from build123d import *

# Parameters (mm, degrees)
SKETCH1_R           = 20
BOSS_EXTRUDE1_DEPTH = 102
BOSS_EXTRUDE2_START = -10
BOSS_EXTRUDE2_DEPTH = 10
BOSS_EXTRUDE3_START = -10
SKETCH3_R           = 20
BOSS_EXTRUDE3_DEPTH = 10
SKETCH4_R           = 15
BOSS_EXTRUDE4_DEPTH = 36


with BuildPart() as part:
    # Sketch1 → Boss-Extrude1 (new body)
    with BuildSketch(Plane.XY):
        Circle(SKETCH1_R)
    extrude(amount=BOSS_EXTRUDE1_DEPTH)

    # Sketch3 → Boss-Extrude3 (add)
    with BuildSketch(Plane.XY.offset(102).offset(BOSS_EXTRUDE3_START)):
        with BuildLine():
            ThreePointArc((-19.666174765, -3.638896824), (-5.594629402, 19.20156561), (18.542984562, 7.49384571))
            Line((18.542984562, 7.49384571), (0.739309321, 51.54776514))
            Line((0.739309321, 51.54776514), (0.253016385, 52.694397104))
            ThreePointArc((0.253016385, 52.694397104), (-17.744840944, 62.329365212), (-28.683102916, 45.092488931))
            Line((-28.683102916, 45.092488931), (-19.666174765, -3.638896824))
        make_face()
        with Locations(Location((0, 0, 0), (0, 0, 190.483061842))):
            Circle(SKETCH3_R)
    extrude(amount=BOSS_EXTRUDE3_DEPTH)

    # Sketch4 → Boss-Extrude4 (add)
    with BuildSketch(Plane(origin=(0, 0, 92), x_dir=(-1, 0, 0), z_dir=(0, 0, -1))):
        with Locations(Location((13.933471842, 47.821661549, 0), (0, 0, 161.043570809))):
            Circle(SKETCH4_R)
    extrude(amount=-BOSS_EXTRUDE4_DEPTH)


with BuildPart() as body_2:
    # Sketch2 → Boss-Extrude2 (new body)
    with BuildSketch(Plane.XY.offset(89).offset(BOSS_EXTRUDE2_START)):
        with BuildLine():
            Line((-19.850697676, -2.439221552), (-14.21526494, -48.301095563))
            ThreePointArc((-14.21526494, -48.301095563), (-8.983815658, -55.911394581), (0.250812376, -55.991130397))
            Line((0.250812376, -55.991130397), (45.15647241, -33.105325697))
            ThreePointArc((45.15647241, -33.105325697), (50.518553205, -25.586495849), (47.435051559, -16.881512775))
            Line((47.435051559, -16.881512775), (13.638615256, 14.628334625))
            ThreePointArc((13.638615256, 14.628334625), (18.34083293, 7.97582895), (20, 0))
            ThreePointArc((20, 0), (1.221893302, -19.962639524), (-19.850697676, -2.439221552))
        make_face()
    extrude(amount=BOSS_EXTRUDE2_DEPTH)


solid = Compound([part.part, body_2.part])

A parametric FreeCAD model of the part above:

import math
import FreeCAD as App
import Part
import Sketcher
from FreeCAD import Vector

doc = App.newDocument("Part")
body = doc.addObject("PartDesign::Body", "Body")

# Sketch on XY plane
sketch1 = body.newObject("Sketcher::SketchObject", "Sketch")
sketch1.AttachmentSupport = (doc.getObject("XY_Plane"), [""])
sketch1.MapMode = "FlatFace"
sketch1.addGeometry(Part.Circle(Vector(0, 0, 0), Vector(0, 0, 1), 20), False)
sketch1.addConstraint(Sketcher.Constraint("Coincident", 0, 3, -1, 1))
sketch1.addConstraint(Sketcher.Constraint("Diameter", 0, 40.0))
pad1 = body.newObject("PartDesign::Pad", "Pad")
pad1.Profile = sketch1
pad1.Length = 102

# Sketch on XY plane
sketch2 = body.newObject("Sketcher::SketchObject", "Sketch001")
sketch2.AttachmentSupport = (doc.getObject("XY_Plane"), [""])
sketch2.MapMode = "FlatFace"
sketch2.AttachmentOffset = App.Placement(Vector(0, 0, 92), App.Rotation())
sketch2.addGeometry(Part.LineSegment(Vector(18.542985, 7.493846, 0), Vector(0.739309, 51.547765, 0)), False)
sketch2.addGeometry(Part.LineSegment(Vector(0.739309, 51.547765, 0), Vector(0.253016, 52.694397, 0)), False)
sketch2.addGeometry(Part.ArcOfCircle(Part.Circle(Vector(-13.933472, 47.821662, 0), Vector(0, 0, 1), 15), math.radians(18.956429), math.radians(190.483062)), False)
sketch2.addGeometry(Part.LineSegment(Vector(-28.683103, 45.092489, 0), Vector(-19.666175, -3.638897, 0)), False)
sketch2.addGeometry(Part.ArcOfCircle(Part.Circle(Vector(0, 0, 0), Vector(0, 0, 1), 20), math.radians(-169.516938), math.radians(22.005295)), False)
sketch2.addConstraint(Sketcher.Constraint("Coincident", 0, 2, 1, 1))
sketch2.addConstraint(Sketcher.Constraint("Coincident", 1, 2, 2, 1))
sketch2.addConstraint(Sketcher.Constraint("Tangent", 2, 2, 3, 1))
sketch2.addConstraint(Sketcher.Constraint("Tangent", 3, 2, 4, 1))
sketch2.addConstraint(Sketcher.Constraint("Tangent", 4, 2, 0, 1))
sketch2.addConstraint(Sketcher.Constraint("Coincident", 4, 3, -1, 1))
sketch2.addConstraint(Sketcher.Constraint("Radius", 2, 15.0))
sketch2.addConstraint(Sketcher.Constraint("Radius", 4, 20.0))
sketch2.addConstraint(Sketcher.Constraint("Distance", 1, 1.24549))
sketch2.addConstraint(Sketcher.Constraint("Distance", 3, 49.558581))
sketch2.addConstraint(Sketcher.Constraint("DistanceX", 2, 3, -1, 1, 13.933472))
sketch2.addConstraint(Sketcher.Constraint("DistanceX", -1, 1, 0, 2, 0.739309))
sketch2.addConstraint(Sketcher.Constraint("DistanceY", 0, 2, 1, 2, 1.146632))
pad2 = body.newObject("PartDesign::Pad", "Pad001")
pad2.Profile = sketch2
pad2.Length = 10

# Sketch on XY plane
sketch3 = body.newObject("Sketcher::SketchObject", "Sketch002")
sketch3.AttachmentSupport = (doc.getObject("XY_Plane"), [""])
sketch3.MapMode = "FlatFace"
sketch3.AttachmentOffset = App.Placement(Vector(0, 0, 92), App.Rotation())
sketch3.addGeometry(Part.Circle(Vector(-13.933472, 47.821662, 0), Vector(0, 0, 1), 15), False)
sketch3.addConstraint(Sketcher.Constraint("Diameter", 0, 30.0))
sketch3.addConstraint(Sketcher.Constraint("DistanceX", 0, 3, -1, 1, 13.933472))
sketch3.addConstraint(Sketcher.Constraint("DistanceY", -1, 1, 0, 3, 47.821662))
pad3 = body.newObject("PartDesign::Pad", "Pad002")
pad3.Profile = sketch3
pad3.Length = 36
body2 = doc.addObject("PartDesign::Body", "Body001")

# Sketch on XY plane
sketch4 = body2.newObject("Sketcher::SketchObject", "Sketch003")
sketch4.AttachmentSupport = (doc.getObject("XY_Plane001"), [""])
sketch4.MapMode = "FlatFace"
sketch4.AttachmentOffset = App.Placement(Vector(0, 0, 79), App.Rotation())
sketch4.addGeometry(Part.LineSegment(Vector(-19.850698, -2.439222, 0), Vector(-14.215265, -48.301096, 0)), False)
sketch4.addGeometry(Part.ArcOfCircle(Part.Circle(Vector(-4.289916, -47.081485, 0), Vector(0, 0, 1), 10), math.radians(-172.994705), math.radians(-62.994705)), False)
sketch4.addGeometry(Part.LineSegment(Vector(0.250812, -55.99113, 0), Vector(45.156472, -33.105326, 0)), False)
sketch4.addGeometry(Part.ArcOfCircle(Part.Circle(Vector(40.615744, -24.19568, 0), Vector(0, 0, 1), 10), math.radians(-62.994705), math.radians(47.005295)), False)
sketch4.addGeometry(Part.LineSegment(Vector(47.435052, -16.881513, 0), Vector(13.638615, 14.628335, 0)), False)
sketch4.addGeometry(Part.ArcOfCircle(Part.Circle(Vector(0, 0, 0), Vector(0, 0, 1), 20), math.radians(0), math.radians(47.005295)), False)
sketch4.addGeometry(Part.ArcOfCircle(Part.Circle(Vector(0, 0, 0), Vector(0, 0, 1), 20), math.radians(-172.994705), math.radians(0)), False)
sketch4.addConstraint(Sketcher.Constraint("Tangent", 0, 2, 1, 1))
sketch4.addConstraint(Sketcher.Constraint("Tangent", 1, 2, 2, 1))
sketch4.addConstraint(Sketcher.Constraint("Tangent", 2, 2, 3, 1))
sketch4.addConstraint(Sketcher.Constraint("Tangent", 3, 2, 4, 1))
sketch4.addConstraint(Sketcher.Constraint("Tangent", 4, 2, 5, 2))
sketch4.addConstraint(Sketcher.Constraint("Tangent", 5, 1, 6, 2))
sketch4.addConstraint(Sketcher.Constraint("Tangent", 6, 1, 0, 1))
sketch4.addConstraint(Sketcher.Constraint("Coincident", 5, 3, -1, 1))
sketch4.addConstraint(Sketcher.Constraint("Equal", 1, 3))
sketch4.addConstraint(Sketcher.Constraint("Equal", 5, 6))
sketch4.addConstraint(Sketcher.Constraint("PointOnObject", 5, 1, -1))
sketch4.addConstraint(Sketcher.Constraint("Equal", 0, 4))
sketch4.addConstraint(Sketcher.Constraint("Radius", 1, 10.0))
sketch4.addConstraint(Sketcher.Constraint("Radius", 5, 20.0))
sketch4.addConstraint(Sketcher.Constraint("DistanceY", 3, 3, -1, 1, 24.19568))
sketch4.addConstraint(Sketcher.Constraint("DistanceY", 1, 2, -1, 1, 55.99113))
sketch4.addConstraint(Sketcher.Constraint("DistanceX", -1, 1, 3, 2, 47.435052))
pad4 = body2.newObject("PartDesign::Pad", "Pad003")
pad4.Profile = sketch4
pad4.Length = 10

doc.recompute()
